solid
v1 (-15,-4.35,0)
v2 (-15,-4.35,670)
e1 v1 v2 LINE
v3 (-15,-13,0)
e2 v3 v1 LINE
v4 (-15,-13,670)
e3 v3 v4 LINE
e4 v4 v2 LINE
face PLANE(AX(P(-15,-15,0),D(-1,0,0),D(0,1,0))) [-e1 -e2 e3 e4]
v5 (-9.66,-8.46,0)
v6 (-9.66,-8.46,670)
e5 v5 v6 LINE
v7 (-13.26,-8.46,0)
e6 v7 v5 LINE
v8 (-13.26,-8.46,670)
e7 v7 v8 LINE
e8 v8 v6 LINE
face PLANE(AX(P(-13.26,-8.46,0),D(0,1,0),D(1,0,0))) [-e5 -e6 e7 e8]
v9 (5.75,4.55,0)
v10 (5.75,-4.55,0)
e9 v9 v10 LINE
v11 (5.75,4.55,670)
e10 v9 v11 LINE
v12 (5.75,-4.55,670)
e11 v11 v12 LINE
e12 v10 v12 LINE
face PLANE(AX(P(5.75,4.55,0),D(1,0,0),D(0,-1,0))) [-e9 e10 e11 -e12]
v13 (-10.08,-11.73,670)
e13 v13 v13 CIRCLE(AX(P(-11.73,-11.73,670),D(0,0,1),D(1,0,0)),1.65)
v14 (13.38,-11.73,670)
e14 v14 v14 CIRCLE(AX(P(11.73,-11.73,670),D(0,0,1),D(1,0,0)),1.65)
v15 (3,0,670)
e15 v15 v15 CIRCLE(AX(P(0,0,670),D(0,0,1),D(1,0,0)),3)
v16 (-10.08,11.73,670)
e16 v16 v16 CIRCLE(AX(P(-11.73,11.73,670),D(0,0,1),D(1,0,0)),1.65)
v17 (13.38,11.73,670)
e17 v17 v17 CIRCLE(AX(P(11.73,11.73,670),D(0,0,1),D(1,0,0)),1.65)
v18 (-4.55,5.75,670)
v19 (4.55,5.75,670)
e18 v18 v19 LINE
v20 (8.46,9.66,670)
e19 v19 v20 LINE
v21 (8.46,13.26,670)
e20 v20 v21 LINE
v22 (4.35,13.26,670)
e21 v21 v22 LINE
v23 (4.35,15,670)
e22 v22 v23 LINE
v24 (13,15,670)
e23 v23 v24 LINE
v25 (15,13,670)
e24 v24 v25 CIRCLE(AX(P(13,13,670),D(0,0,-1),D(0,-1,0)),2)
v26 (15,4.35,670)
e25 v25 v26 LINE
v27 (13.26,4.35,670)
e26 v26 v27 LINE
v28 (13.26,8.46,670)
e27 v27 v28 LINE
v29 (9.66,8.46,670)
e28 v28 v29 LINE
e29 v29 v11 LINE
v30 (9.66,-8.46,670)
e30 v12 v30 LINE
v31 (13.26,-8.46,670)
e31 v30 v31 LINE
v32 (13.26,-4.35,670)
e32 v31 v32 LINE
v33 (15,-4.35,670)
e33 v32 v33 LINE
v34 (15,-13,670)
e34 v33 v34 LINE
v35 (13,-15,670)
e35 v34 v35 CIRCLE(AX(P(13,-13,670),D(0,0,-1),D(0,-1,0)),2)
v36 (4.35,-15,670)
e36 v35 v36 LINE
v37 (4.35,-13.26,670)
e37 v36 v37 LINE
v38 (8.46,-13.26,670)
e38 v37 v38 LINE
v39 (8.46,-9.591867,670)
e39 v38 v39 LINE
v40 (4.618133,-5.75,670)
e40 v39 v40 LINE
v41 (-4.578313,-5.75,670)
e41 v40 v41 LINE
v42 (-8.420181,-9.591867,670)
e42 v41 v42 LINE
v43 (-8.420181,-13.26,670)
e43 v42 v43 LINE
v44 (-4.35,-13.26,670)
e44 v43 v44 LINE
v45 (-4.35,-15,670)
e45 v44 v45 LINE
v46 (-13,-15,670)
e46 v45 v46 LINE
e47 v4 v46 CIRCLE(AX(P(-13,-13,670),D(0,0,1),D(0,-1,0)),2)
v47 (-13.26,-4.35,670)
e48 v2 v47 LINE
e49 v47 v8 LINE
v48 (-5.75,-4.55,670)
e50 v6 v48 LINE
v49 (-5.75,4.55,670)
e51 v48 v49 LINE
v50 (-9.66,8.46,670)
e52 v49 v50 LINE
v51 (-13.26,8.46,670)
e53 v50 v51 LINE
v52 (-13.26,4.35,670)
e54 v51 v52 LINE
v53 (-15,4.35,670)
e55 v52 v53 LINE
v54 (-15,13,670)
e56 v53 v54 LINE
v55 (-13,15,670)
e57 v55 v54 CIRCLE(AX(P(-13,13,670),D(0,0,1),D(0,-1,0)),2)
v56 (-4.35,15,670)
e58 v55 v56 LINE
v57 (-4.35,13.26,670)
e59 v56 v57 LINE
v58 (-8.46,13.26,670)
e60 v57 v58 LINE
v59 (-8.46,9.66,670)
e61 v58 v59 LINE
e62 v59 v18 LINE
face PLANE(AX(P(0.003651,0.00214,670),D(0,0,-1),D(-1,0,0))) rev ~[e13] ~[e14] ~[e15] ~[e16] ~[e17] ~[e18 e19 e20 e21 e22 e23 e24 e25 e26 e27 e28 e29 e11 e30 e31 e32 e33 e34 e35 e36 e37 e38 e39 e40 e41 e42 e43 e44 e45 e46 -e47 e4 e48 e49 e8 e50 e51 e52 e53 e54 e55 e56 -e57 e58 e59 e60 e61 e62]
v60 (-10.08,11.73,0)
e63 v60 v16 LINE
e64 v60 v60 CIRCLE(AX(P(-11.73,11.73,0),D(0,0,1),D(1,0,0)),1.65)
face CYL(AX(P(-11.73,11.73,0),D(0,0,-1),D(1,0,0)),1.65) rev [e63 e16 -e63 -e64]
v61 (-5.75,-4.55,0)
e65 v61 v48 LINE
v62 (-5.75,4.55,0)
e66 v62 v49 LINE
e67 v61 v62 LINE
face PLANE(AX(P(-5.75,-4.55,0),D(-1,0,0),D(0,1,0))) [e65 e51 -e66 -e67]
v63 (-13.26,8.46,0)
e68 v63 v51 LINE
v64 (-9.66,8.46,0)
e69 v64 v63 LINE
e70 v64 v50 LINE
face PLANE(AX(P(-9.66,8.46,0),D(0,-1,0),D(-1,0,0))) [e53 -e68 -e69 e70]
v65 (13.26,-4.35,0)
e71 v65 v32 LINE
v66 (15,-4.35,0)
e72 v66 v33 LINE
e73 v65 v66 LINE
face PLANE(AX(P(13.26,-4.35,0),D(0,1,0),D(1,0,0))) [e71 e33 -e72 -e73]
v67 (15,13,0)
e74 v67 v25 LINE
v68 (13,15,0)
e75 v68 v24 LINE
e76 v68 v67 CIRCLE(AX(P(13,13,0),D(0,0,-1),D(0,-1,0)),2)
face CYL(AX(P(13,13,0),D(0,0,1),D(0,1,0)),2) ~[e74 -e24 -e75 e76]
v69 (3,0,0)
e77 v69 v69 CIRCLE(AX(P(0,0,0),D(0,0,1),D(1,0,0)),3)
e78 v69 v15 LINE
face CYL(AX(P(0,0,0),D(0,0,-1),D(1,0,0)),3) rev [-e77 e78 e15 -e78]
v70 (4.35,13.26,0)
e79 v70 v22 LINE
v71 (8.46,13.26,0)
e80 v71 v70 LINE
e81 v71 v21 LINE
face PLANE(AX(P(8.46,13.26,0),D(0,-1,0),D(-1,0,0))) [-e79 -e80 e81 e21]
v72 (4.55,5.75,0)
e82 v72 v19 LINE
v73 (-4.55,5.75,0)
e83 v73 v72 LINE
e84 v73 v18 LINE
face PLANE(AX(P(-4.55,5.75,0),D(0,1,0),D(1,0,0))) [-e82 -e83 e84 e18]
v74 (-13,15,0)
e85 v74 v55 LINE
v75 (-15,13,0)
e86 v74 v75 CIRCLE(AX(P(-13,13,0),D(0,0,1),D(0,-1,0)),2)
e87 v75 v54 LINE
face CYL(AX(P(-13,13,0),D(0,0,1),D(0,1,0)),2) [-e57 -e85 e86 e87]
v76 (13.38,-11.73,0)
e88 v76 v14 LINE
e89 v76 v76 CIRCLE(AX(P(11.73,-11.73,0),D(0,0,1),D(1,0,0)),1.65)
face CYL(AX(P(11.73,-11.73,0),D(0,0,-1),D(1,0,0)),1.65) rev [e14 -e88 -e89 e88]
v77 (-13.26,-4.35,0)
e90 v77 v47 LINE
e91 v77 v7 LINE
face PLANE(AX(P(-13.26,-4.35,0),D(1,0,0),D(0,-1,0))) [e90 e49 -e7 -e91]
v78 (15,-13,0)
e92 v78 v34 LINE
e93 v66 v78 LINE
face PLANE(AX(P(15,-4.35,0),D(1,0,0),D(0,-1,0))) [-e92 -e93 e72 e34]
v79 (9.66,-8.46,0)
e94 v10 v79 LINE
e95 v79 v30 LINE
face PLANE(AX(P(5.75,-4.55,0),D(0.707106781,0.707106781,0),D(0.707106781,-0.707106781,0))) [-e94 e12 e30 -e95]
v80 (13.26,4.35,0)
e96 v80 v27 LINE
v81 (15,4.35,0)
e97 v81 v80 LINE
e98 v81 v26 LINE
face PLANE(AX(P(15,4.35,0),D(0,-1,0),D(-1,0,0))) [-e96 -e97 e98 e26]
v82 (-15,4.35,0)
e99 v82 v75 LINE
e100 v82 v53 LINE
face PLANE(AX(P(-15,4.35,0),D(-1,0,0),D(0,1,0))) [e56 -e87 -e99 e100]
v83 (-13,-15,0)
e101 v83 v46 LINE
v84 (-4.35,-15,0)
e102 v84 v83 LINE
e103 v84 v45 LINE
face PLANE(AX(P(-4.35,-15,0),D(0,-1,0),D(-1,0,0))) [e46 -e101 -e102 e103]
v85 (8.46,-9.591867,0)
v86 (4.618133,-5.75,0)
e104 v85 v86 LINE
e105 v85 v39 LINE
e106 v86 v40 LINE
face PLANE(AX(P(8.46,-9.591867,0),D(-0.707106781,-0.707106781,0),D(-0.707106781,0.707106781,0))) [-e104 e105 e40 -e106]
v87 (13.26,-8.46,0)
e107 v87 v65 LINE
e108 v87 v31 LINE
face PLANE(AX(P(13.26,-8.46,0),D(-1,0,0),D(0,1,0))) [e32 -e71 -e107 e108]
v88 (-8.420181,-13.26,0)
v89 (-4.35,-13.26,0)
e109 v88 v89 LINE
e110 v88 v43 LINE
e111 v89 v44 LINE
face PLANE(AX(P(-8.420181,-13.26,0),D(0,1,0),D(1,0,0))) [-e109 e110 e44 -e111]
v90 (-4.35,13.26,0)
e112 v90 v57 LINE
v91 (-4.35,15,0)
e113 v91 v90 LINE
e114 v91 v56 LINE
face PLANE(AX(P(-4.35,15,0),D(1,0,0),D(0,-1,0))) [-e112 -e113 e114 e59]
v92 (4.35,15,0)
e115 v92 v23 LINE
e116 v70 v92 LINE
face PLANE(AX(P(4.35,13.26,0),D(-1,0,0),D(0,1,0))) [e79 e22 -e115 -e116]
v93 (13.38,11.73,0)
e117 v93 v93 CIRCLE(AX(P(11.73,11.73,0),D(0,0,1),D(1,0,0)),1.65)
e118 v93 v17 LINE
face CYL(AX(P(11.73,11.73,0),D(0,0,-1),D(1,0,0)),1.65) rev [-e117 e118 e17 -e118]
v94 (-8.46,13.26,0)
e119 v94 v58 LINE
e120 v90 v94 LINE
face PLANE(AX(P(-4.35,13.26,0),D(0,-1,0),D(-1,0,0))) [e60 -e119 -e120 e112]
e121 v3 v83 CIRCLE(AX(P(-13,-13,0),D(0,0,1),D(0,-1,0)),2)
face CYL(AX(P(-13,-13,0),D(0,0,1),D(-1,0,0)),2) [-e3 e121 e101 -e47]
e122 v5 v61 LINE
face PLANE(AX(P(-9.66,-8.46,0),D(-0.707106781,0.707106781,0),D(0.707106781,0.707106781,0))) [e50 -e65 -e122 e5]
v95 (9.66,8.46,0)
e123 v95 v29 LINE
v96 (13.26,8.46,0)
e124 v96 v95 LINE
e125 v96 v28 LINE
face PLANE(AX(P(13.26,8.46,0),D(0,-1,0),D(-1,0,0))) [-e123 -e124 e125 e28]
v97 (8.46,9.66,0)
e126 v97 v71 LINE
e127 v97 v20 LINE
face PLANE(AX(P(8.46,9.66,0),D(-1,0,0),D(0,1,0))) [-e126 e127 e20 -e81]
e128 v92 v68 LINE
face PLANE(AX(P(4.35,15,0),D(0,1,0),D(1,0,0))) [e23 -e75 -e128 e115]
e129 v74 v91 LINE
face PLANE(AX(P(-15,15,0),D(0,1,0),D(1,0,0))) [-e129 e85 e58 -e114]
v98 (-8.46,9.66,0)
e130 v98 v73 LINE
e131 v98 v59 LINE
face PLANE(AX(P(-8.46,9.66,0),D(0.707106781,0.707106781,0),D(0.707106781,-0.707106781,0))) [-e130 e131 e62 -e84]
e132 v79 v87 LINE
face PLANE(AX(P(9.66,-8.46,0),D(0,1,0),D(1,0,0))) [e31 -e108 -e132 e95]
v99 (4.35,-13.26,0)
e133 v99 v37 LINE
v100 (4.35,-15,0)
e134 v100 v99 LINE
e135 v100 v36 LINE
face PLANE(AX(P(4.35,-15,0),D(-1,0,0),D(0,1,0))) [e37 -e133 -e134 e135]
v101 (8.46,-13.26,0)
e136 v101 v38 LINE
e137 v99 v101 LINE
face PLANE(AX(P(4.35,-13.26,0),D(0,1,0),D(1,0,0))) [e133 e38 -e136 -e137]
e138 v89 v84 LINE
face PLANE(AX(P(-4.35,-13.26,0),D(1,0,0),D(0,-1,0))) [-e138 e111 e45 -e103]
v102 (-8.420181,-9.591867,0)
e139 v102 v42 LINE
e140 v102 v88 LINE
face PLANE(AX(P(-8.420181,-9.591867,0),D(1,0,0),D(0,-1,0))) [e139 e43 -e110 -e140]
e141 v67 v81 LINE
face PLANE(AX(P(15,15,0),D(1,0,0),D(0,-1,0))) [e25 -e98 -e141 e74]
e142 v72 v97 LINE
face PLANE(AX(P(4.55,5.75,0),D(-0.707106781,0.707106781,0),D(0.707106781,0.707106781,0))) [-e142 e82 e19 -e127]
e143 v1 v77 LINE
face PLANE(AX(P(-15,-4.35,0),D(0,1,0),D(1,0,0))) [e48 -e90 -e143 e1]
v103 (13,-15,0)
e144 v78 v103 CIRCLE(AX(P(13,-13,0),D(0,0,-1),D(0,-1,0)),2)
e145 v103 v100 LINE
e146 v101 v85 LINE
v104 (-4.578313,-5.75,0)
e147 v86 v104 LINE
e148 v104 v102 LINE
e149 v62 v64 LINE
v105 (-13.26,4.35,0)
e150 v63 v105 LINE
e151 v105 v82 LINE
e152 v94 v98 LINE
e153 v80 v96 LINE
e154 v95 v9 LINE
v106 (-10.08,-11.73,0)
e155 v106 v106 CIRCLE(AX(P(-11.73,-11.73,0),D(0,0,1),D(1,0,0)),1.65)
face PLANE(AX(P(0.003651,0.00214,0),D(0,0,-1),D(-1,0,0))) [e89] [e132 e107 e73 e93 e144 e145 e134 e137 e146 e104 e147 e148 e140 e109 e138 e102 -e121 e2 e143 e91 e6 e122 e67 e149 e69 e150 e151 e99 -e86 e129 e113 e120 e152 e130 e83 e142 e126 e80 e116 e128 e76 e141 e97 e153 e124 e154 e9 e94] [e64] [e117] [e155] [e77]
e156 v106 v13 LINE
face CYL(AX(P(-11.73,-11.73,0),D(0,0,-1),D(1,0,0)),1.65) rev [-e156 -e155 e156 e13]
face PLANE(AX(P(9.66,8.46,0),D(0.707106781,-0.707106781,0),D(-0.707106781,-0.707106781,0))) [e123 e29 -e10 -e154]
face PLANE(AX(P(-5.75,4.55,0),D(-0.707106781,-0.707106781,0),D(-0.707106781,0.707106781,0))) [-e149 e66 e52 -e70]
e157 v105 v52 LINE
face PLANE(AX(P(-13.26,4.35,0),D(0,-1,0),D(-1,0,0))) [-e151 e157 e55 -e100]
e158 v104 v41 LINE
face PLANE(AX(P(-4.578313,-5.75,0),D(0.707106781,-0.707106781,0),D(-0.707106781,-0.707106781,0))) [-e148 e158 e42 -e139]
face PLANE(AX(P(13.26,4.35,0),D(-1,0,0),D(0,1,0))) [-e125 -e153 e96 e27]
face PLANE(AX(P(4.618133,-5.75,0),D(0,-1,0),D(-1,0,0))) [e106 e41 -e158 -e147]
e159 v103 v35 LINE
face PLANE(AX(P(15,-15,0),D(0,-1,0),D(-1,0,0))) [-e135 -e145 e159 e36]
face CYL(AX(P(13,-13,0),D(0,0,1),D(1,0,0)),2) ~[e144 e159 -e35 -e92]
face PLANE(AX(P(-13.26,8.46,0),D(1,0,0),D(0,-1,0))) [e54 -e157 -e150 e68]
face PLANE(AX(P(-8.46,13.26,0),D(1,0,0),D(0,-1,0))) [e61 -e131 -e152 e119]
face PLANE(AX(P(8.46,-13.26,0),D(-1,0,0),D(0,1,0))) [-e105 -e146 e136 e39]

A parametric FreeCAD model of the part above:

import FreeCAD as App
import Part
import Sketcher

V = App.Vector


def edges_at(feature, points):
    """Names of the edges that pass closest to the given points."""
    edges = feature.Shape.Edges
    near = lambda p: min(range(len(edges)), key=lambda i: edges[i].distToShape(Part.Vertex(*p))[0])
    return sorted({f"Edge{near(p) + 1}" for p in points})


def add_polygon(sketch, points):
    """Adds a closed chain of lines whose ends are joined by coincident constraints."""
    first, n = sketch.GeometryCount, len(points)
    for a, b in zip(points, points[1:] + points[:1]):
        sketch.addGeometry(Part.LineSegment(App.Vector(*a, 0), App.Vector(*b, 0)), False)
    for i in range(n):
        sketch.addConstraint(Sketcher.Constraint("Coincident", first + i, 2, first + (i + 1) % n, 1))

doc = App.newDocument("Part")
body = doc.addObject("PartDesign::Body", "Body")

# Sketch on XY plane
sketch1 = body.newObject("Sketcher::SketchObject", "Sketch")
sketch1.AttachmentSupport = (doc.getObject("XY_Plane"), [""])
sketch1.MapMode = "FlatFace"
add_polygon(sketch1, [(-4.5, 5.8), (-8.5, 9.7), (-8.5, 13.3), (-4.3, 13.3), (-4.3, 15), (-15, 15), (-15, 4.3), (-13.3, 4.3), (-13.3, 8.5), (-9.7, 8.5), (-5.8, 4.5), (-5.8, -4.5), (-9.7, -8.5), (-13.3, -8.5), (-13.3, -4.3), (-15, -4.3), (-15, -15), (-4.3, -15), (-4.3, -13.3), (-8.4, -13.3), (-8.4, -9.6), (-4.6, -5.8), (4.6, -5.8), (8.5, -9.6), (8.5, -13.3), (4.3, -13.3), (4.3, -15), (15, -15), (15, -4.3), (13.3, -4.3), (13.3, -8.5), (9.7, -8.5), (5.8, -4.5), (5.8, 4.5), (9.7, 8.5), (13.3, 8.5), (13.3, 4.3), (15, 4.3), (15, 15), (4.3, 15), (4.3, 13.3), (8.5, 13.3), (8.5, 9.7), (4.5, 5.8)])  # lines 0-43
sketch1.addGeometry(Part.Circle(V(11.7, -11.7, 0), V(0, 0, 1), 1.6), False)  # 44
sketch1.addGeometry(Part.Circle(V(-11.7, -11.7, 0), V(0, 0, 1), 1.6), False)  # 45
sketch1.addGeometry(Part.Circle(V(0, 0, 0), V(0, 0, 1), 3), False)  # 46
sketch1.addGeometry(Part.Circle(V(11.7, 11.7, 0), V(0, 0, 1), 1.6), False)  # 47
sketch1.addGeometry(Part.Circle(V(-11.7, 11.7, 0), V(0, 0, 1), 1.6), False)  # 48
sketch1.addConstraint([
    Sketcher.Constraint("Vertical", 1),
    Sketcher.Constraint("Horizontal", 2),
    Sketcher.Constraint("Vertical", 3),
    Sketcher.Constraint("Horizontal", 4),
    Sketcher.Constraint("Vertical", 5),
    Sketcher.Constraint("Horizontal", 6),
    Sketcher.Constraint("Vertical", 7),
    Sketcher.Constraint("Horizontal", 8),
    Sketcher.Constraint("Vertical", 10),
    Sketcher.Constraint("Horizontal", 12),
    Sketcher.Constraint("Vertical", 13),
    Sketcher.Constraint("Horizontal", 14),
    Sketcher.Constraint("Vertical", 15),
    Sketcher.Constraint("Horizontal", 16),
    Sketcher.Constraint("Vertical", 17),
    Sketcher.Constraint("Horizontal", 18),
    Sketcher.Constraint("Vertical", 19),
    Sketcher.Constraint("Horizontal", 21),
    Sketcher.Constraint("Vertical", 23),
    Sketcher.Constraint("Horizontal", 24),
    Sketcher.Constraint("Vertical", 25),
    Sketcher.Constraint("Horizontal", 26),
    Sketcher.Constraint("Vertical", 27),
    Sketcher.Constraint("Horizontal", 28),
    Sketcher.Constraint("Vertical", 29),
    Sketcher.Constraint("Horizontal", 30),
    Sketcher.Constraint("Vertical", 32),
    Sketcher.Constraint("Horizontal", 34),
    Sketcher.Constraint("Vertical", 35),
    Sketcher.Constraint("Horizontal", 36),
    Sketcher.Constraint("Vertical", 37),
    Sketcher.Constraint("Horizontal", 38),
    Sketcher.Constraint("Vertical", 39),
    Sketcher.Constraint("Horizontal", 40),
    Sketcher.Constraint("Vertical", 41),
    Sketcher.Constraint("Horizontal", 43),
    Sketcher.Constraint("Coincident", 46, 3, -1, 1),
    Sketcher.Constraint("Equal", 44, 45),
    Sketcher.Constraint("Equal", 45, 47),
    Sketcher.Constraint("Equal", 47, 48),
    Sketcher.Constraint("Symmetric", 45, 3, 47, 3, -1, 1),
    Sketcher.Constraint("Symmetric", 44, 3, 48, 3, -1, 1),
    Sketcher.Constraint("Symmetric", 1, 2, 23, 2, -1, 1),
    Sketcher.Constraint("Symmetric", 3, 2, 25, 2, -1, 1),
    Sketcher.Constraint("Symmetric", 5, 2, 27, 2, -1, 1),
    Sketcher.Constraint("Symmetric", 7, 2, 29, 2, -1, 1),
    Sketcher.Constraint("Symmetric", 9, 2, 31, 2, -1, 1),
    Sketcher.Constraint("Symmetric", 11, 2, 33, 2, -1, 1),
    Sketcher.Constraint("Symmetric", 13, 2, 35, 2, -1, 1),
    Sketcher.Constraint("Symmetric", 15, 2, 37, 2, -1, 1),
    Sketcher.Constraint("Symmetric", 17, 2, 39, 2, -1, 1),
    Sketcher.Constraint("Symmetric", 44, 3, 45, 3, -2),
    Sketcher.Constraint("Symmetric", 17, 2, 24, 2, -2),
    Sketcher.Constraint("Symmetric", 15, 2, 26, 2, -2),
    Sketcher.Constraint("Symmetric", 13, 2, 28, 2, -2),
    Sketcher.Constraint("Symmetric", 11, 2, 30, 2, -2),
    Sketcher.Constraint("Symmetric", 0, 2, 41, 2, -2),
    Sketcher.Constraint("Parallel", 0, 9),
    Sketcher.Constraint("Perpendicular", 9, 11),
    Sketcher.Constraint("Parallel", 11, 20),
    Sketcher.Constraint("Perpendicular", 20, 22),
    Sketcher.Constraint("Parallel", 22, 31),
    Sketcher.Constraint("Perpendicular", 31, 33),
    Sketcher.Constraint("Parallel", 33, 42),
    Sketcher.Constraint("Horizontal", 19, 2, 22, 2),
    Sketcher.Constraint("Horizontal", 10, 2, 31, 2),
    Sketcher.Constraint("Equal", 34, 1),
    Sketcher.Constraint("Equal", 36, 3),
    Sketcher.Constraint("Equal", 38, 5),
    Sketcher.Constraint("Equal", 40, 7),
    Sketcher.Constraint("Equal", 43, 10),
    Sketcher.Constraint("Equal", 0, 9),
    Sketcher.Constraint("Diameter", 46, 6.0),
    Sketcher.Constraint("Diameter", 44, 3.3),
    Sketcher.Constraint("DistanceX", 8, 1, 8, 2, 3.6),
    Sketcher.Constraint("DistanceX", 43, 2, 43, 1, 9.1),
    Sketcher.Constraint("DistanceY", -1, 1, 3, 2, 15.0),
    Sketcher.Constraint("DistanceX", 2, 1, 2, 2, 4.11),
    Sketcher.Constraint("DistanceX", 4, 2, 4, 1, 10.65),
    Sketcher.Constraint("DistanceX", 6, 1, 6, 2, 1.74),
    Sketcher.Constraint("DistanceY", 20, 2, 10, 2, 1.2),
    Sketcher.Constraint("DistanceX", -1, 1, 44, 3, 11.73),
    Sketcher.Constraint("DistanceY", 44, 3, -1, 1, 11.73),
    Sketcher.Constraint("DistanceX", 18, 2, 18, 1, 4.070181),
    Sketcher.Constraint("Distance", 20, 5.433221),
])
pad1 = body.newObject("PartDesign::Pad", "Pad")
pad1.Profile = sketch1
pad1.Length = 670
doc.recompute()

fillet = body.newObject("PartDesign::Fillet", "Fillet")
fillet.Base = (pad1, edges_at(pad1, [
    (15, 15, 335),
    (15, -15, 335),
    (-15, -15, 335),
    (-15, 15, 335),
]))
fillet.Radius = 2

doc.recompute()
